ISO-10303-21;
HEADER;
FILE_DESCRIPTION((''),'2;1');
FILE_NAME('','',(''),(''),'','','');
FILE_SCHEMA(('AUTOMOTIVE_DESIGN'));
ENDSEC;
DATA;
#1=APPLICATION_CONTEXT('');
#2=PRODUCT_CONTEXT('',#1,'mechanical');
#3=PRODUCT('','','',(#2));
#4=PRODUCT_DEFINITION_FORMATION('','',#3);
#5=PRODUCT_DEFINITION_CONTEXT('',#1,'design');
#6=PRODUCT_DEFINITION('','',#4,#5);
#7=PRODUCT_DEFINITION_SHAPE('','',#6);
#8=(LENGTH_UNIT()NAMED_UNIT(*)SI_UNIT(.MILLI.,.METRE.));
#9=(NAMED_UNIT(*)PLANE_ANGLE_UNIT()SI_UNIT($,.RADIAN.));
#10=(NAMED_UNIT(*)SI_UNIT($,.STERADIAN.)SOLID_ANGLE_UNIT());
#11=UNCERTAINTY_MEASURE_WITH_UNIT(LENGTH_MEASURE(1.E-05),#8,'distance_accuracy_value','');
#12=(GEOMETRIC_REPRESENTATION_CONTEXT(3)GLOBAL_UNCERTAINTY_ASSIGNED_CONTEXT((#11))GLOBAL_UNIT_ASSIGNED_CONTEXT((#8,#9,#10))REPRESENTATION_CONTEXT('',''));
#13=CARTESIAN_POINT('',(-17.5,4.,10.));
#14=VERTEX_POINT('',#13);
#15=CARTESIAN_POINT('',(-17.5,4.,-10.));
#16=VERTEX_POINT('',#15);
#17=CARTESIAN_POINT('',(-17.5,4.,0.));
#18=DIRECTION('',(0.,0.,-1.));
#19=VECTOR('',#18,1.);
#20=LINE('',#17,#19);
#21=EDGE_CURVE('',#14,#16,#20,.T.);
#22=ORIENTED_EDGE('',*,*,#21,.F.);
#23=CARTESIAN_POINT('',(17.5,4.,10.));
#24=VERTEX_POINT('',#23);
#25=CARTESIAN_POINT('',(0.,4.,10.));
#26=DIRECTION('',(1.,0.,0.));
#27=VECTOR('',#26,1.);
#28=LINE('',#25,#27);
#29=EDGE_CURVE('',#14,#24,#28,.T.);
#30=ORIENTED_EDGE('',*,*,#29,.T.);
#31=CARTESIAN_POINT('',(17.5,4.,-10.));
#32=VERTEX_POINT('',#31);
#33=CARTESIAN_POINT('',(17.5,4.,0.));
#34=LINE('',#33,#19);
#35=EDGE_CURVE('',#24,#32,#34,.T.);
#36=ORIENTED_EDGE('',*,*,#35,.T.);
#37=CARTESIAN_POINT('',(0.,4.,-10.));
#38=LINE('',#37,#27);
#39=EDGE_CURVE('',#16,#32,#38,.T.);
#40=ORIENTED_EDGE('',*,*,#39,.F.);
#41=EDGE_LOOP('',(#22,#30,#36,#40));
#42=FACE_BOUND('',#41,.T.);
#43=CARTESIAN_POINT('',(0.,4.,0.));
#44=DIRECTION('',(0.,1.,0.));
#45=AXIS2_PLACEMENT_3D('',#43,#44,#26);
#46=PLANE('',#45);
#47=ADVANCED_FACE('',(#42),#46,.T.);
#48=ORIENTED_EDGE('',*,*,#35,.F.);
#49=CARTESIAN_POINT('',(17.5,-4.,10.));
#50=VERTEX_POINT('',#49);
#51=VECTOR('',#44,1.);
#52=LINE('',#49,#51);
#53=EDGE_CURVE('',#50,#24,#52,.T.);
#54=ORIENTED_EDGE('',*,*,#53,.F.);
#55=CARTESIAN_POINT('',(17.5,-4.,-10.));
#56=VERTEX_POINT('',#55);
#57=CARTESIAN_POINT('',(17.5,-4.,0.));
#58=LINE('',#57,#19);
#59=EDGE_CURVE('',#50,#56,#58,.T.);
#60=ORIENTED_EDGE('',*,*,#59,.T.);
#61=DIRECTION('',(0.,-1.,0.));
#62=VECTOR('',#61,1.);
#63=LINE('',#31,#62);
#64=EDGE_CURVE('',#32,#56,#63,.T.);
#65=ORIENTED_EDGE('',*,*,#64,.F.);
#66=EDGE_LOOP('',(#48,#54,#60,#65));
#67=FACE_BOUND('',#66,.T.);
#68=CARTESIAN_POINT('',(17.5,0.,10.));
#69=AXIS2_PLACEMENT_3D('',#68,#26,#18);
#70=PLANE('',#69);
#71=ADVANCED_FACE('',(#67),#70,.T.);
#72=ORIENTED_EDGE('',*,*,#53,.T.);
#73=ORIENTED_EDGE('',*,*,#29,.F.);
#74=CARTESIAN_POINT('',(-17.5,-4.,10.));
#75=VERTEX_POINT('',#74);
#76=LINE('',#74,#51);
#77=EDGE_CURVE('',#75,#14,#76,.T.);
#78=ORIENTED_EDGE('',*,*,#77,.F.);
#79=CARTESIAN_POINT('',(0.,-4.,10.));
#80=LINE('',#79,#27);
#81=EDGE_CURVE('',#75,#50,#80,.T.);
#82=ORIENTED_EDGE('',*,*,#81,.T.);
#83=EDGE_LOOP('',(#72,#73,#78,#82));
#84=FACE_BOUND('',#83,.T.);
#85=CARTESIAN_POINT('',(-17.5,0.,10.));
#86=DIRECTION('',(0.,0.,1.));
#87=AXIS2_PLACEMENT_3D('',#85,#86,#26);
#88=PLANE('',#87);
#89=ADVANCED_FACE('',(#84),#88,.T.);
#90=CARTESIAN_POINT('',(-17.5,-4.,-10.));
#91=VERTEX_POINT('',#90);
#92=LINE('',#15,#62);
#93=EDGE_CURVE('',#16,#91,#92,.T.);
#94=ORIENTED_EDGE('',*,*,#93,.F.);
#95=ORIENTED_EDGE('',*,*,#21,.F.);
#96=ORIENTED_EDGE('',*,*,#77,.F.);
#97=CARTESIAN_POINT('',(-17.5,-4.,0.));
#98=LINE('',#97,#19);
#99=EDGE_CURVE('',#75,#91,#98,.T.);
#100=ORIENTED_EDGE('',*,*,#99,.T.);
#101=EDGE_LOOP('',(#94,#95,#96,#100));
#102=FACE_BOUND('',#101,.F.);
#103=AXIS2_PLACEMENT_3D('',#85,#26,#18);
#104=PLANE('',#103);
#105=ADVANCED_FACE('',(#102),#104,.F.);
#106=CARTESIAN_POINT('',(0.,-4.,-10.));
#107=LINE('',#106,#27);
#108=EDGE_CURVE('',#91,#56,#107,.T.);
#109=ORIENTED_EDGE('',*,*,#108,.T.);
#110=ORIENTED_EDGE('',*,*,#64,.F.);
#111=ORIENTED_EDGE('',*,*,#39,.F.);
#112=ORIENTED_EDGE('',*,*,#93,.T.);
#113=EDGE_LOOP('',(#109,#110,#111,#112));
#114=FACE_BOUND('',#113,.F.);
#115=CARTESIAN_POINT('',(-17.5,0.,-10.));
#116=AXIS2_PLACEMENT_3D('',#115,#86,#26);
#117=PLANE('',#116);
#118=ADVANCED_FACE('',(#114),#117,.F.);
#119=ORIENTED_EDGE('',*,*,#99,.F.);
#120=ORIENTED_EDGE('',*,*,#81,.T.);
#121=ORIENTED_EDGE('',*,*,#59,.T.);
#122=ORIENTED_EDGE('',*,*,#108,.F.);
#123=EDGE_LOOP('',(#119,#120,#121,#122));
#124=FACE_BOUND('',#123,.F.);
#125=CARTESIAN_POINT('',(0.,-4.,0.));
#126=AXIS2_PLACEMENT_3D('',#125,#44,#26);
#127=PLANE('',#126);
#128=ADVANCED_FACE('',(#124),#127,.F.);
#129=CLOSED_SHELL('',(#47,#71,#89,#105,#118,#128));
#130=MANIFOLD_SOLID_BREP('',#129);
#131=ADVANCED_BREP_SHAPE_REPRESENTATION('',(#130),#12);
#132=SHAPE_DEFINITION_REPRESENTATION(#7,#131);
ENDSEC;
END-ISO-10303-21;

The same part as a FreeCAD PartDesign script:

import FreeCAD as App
import Part
import Sketcher
from FreeCAD import Vector
Q = App.Units.Quantity

doc = App.newDocument("Part")
body = doc.addObject("PartDesign::Body", "Body")

# Sketch on XZ plane
sketch1 = doc.addObject("Sketcher::SketchObject", "Sketch")
body.addObject(sketch1)
sketch1.AttachmentSupport = (doc.XZ_Plane, [""])
sketch1.MapMode = "FlatFace"
sketch1.addGeometry([
    Part.LineSegment(Vector(-17.5, -10, 0), Vector(-17.5, 10, 0)),
    Part.LineSegment(Vector(-17.5, 10, 0), Vector(17.5, 10, 0)),
    Part.LineSegment(Vector(17.5, 10, 0), Vector(17.5, -10, 0)),
    Part.LineSegment(Vector(17.5, -10, 0), Vector(-17.5, -10, 0)),
], False)
sketch1.addConstraint([
    Sketcher.Constraint("Coincident", 0, 2, 1, 1),
    Sketcher.Constraint("Coincident", 1, 2, 2, 1),
    Sketcher.Constraint("Coincident", 2, 2, 3, 1),
    Sketcher.Constraint("Coincident", 3, 2, 0, 1),
    Sketcher.Constraint("Vertical", 0),
    Sketcher.Constraint("Horizontal", 1),
    Sketcher.Constraint("Vertical", 2),
    Sketcher.Constraint("Horizontal", 3),
    Sketcher.Constraint("Symmetric", 0, 2, 2, 2, -1, 1),
    Sketcher.Constraint("DistanceX", 1, 1, 1, 2, Q("35 mm")),
    Sketcher.Constraint("DistanceY", 0, 1, 0, 2, Q("20 mm")),
])
pad1 = doc.addObject("PartDesign::Pad", "Pad")
body.addObject(pad1)
pad1.Profile = sketch1
pad1.Length = 8
pad1.Midplane = True

doc.recompute()
